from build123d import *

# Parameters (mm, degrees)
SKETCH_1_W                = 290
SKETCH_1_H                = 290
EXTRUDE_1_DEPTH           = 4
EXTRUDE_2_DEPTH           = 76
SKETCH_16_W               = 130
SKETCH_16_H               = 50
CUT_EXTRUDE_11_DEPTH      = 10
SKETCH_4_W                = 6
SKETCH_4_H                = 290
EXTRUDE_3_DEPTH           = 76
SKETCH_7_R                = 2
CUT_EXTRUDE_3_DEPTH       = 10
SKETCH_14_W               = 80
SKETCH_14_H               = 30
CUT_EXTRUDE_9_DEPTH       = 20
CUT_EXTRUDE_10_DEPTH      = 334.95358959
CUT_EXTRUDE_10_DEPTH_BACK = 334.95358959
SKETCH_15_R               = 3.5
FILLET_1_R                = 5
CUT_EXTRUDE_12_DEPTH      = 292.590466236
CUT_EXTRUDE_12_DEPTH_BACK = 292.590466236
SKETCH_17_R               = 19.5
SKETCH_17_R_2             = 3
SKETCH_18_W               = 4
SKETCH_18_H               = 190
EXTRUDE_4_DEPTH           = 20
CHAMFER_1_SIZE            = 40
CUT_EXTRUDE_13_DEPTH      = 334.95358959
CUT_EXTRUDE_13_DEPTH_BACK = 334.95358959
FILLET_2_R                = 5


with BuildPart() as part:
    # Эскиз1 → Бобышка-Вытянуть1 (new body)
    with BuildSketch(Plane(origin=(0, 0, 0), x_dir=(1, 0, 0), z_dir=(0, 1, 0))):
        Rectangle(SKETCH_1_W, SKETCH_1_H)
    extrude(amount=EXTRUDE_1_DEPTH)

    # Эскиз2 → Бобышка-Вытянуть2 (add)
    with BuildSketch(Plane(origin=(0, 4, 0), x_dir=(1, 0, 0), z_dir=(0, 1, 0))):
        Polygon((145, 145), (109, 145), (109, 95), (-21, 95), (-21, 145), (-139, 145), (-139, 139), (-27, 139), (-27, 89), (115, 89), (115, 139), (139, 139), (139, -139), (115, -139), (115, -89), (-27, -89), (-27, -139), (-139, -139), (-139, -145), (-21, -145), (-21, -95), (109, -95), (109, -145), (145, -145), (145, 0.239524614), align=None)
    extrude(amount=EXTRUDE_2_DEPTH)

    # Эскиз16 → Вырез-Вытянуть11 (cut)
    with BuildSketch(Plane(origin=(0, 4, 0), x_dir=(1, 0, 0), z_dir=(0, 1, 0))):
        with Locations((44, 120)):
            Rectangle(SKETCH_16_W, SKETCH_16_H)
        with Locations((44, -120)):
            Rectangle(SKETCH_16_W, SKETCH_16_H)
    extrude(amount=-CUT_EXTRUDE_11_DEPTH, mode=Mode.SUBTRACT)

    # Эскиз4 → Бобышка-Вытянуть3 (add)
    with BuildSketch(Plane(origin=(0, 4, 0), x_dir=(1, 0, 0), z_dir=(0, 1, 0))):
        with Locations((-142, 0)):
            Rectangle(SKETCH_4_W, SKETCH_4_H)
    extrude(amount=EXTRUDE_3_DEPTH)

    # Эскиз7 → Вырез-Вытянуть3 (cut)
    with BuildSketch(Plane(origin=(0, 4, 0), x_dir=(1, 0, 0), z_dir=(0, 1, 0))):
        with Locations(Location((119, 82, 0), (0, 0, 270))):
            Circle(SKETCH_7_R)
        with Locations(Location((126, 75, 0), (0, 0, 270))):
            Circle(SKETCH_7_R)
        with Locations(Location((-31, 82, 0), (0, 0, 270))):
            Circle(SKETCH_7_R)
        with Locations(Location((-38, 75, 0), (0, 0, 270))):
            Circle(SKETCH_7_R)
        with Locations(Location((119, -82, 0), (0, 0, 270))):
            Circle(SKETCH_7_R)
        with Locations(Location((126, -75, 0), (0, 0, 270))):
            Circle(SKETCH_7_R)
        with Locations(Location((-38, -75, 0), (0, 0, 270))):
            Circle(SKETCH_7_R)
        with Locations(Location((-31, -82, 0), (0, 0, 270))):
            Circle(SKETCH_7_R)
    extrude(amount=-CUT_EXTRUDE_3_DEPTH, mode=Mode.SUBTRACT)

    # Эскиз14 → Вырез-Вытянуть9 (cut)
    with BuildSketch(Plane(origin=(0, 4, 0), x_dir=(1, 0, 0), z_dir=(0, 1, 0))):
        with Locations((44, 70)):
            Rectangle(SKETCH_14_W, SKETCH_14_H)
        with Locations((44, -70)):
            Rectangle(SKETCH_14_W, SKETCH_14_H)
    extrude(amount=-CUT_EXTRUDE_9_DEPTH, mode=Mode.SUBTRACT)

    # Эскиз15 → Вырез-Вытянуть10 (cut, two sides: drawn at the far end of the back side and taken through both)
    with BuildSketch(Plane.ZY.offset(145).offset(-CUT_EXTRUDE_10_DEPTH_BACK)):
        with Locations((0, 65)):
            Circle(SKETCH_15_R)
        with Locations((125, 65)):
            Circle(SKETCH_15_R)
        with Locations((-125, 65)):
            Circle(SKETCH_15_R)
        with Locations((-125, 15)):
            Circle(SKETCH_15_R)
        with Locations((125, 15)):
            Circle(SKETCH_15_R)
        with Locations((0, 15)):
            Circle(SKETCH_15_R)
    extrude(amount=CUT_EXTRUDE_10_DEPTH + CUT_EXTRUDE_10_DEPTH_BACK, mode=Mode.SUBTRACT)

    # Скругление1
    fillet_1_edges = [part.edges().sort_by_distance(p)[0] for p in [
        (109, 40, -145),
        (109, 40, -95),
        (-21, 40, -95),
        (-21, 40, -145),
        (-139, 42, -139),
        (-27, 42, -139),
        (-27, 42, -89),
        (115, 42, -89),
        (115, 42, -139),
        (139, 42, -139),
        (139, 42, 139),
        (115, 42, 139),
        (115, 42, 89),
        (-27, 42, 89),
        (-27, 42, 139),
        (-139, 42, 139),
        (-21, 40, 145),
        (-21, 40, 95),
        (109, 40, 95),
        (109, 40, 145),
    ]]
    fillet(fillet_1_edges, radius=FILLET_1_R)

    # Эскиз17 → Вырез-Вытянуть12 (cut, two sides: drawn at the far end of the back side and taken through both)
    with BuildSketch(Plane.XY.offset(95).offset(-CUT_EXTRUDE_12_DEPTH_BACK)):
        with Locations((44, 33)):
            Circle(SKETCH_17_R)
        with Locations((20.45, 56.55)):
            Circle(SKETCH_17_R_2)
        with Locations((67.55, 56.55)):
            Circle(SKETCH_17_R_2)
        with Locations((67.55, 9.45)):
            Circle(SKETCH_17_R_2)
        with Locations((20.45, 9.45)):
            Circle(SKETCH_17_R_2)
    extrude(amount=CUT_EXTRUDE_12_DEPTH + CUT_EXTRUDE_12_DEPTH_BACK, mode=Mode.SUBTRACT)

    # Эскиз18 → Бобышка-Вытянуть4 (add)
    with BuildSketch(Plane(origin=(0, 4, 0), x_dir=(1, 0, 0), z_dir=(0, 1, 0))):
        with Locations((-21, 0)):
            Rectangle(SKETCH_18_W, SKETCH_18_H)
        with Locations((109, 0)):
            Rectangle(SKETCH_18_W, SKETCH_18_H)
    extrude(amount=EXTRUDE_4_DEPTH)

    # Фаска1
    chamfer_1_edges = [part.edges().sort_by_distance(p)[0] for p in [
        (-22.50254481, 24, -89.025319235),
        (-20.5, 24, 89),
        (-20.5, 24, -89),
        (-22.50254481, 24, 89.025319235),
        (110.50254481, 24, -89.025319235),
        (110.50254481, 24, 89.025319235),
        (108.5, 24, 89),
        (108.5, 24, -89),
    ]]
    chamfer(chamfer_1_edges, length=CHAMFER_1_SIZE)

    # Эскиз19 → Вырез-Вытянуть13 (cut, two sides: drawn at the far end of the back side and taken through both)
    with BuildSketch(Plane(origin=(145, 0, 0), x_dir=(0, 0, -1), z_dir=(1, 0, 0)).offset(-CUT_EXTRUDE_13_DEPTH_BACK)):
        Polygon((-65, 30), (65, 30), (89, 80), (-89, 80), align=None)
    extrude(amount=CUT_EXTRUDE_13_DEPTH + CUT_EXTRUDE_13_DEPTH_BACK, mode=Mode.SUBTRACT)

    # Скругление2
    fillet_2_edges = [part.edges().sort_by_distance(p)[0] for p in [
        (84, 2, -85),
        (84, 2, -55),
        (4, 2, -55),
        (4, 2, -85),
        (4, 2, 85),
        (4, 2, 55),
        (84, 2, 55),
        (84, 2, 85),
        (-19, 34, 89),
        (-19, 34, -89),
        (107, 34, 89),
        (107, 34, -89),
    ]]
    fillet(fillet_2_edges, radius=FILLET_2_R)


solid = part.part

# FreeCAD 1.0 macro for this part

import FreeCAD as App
import Part
import Sketcher

V = App.Vector
Q = App.Units.Quantity


def edges_at(feature, points):
    """Names of the edges that pass closest to the given points."""
    edges = feature.Shape.Edges
    near = lambda p: min(range(len(edges)), key=lambda i: edges[i].distToShape(Part.Vertex(*p))[0])
    return sorted({f"Edge{near(p) + 1}" for p in points})

doc = App.newDocument("Part")
body = doc.addObject("PartDesign::Body", "Body")

# Sketch on XZ plane
sketch1 = body.newObject("Sketcher::SketchObject", "Sketch")
sketch1.AttachmentSupport = (doc.getObject("XZ_Plane"), [""])
sketch1.MapMode = "FlatFace"
sketch1.addGeometry([
    Part.LineSegment(V(-145, -145, 0), V(-145, 145, 0)),
    Part.LineSegment(V(-145, 145, 0), V(145, 145, 0)),
    Part.LineSegment(V(145, 145, 0), V(145, -145, 0)),
    Part.LineSegment(V(145, -145, 0), V(-145, -145, 0)),
], False)
sketch1.addConstraint([
    Sketcher.Constraint("Coincident", 0, 2, 1, 1),
    Sketcher.Constraint("Coincident", 1, 2, 2, 1),
    Sketcher.Constraint("Coincident", 2, 2, 3, 1),
    Sketcher.Constraint("Coincident", 3, 2, 0, 1),
    Sketcher.Constraint("Vertical", 0),
    Sketcher.Constraint("Horizontal", 1),
    Sketcher.Constraint("Vertical", 2),
    Sketcher.Constraint("Horizontal", 3),
    Sketcher.Constraint("Symmetric", 0, 2, 2, 2, -1, 1),
    Sketcher.Constraint("Equal", 3, 0),
    Sketcher.Constraint("DistanceX", 1, 1, 1, 2, Q("290 mm")),
])
pad1 = body.newObject("PartDesign::Pad", "Pad")
pad1.Profile = sketch1
pad1.Length = 4
pad1.Reversed = True

# Sketch on XZ plane
sketch2 = body.newObject("Sketcher::SketchObject", "Sketch001")
sketch2.AttachmentSupport = (doc.getObject("XZ_Plane"), [""])
sketch2.MapMode = "FlatFace"
sketch2.AttachmentOffset = App.Placement(V(0, 0, -4), App.Rotation())
sketch2.addGeometry([
    Part.LineSegment(V(145, -145, 0), V(109, -145, 0)),  # 0
    Part.LineSegment(V(109, -145, 0), V(109, -95, 0)),  # 1
    Part.LineSegment(V(109, -95, 0), V(-21, -95, 0)),  # 2
    Part.LineSegment(V(-21, -95, 0), V(-21, -145, 0)),  # 3
    Part.LineSegment(V(-21, -145, 0), V(-139, -145, 0)),  # 4
    Part.LineSegment(V(-139, -145, 0), V(-139, -139, 0)),  # 5
    Part.LineSegment(V(-139, -139, 0), V(-27, -139, 0)),  # 6
    Part.LineSegment(V(-27, -139, 0), V(-27, -89, 0)),  # 7
    Part.LineSegment(V(-27, -89, 0), V(115, -89, 0)),  # 8
    Part.LineSegment(V(115, -89, 0), V(115, -139, 0)),  # 9
    Part.LineSegment(V(115, -139, 0), V(139, -139, 0)),  # 10
    Part.LineSegment(V(139, -139, 0), V(139, 139, 0)),  # 11
    Part.LineSegment(V(139, 139, 0), V(115, 139, 0)),  # 12
    Part.LineSegment(V(115, 139, 0), V(115, 89, 0)),  # 13
    Part.LineSegment(V(115, 89, 0), V(-27, 89, 0)),  # 14
    Part.LineSegment(V(-27, 89, 0), V(-27, 139, 0)),  # 15
    Part.LineSegment(V(-27, 139, 0), V(-139, 139, 0)),  # 16
    Part.LineSegment(V(-139, 139, 0), V(-139, 145, 0)),  # 17
    Part.LineSegment(V(-139, 145, 0), V(-21, 145, 0)),  # 18
    Part.LineSegment(V(-21, 145, 0), V(-21, 95, 0)),  # 19
    Part.LineSegment(V(-21, 95, 0), V(109, 95, 0)),  # 20
    Part.LineSegment(V(109, 95, 0), V(109, 145, 0)),  # 21
    Part.LineSegment(V(109, 145, 0), V(145, 145, 0)),  # 22
    Part.LineSegment(V(145, 145, 0), V(145, -145, 0)),  # 23
], False)
sketch2.addConstraint([
    Sketcher.Constraint("Coincident", 0, 2, 1, 1),
    Sketcher.Constraint("Coincident", 1, 2, 2, 1),
    Sketcher.Constraint("Coincident", 2, 2, 3, 1),
    Sketcher.Constraint("Coincident", 3, 2, 4, 1),
    Sketcher.Constraint("Coincident", 4, 2, 5, 1),
    Sketcher.Constraint("Coincident", 5, 2, 6, 1),
    Sketcher.Constraint("Coincident", 6, 2, 7, 1),
    Sketcher.Constraint("Coincident", 7, 2, 8, 1),
    Sketcher.Constraint("Coincident", 8, 2, 9, 1),
    Sketcher.Constraint("Coincident", 9, 2, 10, 1),
    Sketcher.Constraint("Coincident", 10, 2, 11, 1),
    Sketcher.Constraint("Coincident", 11, 2, 12, 1),
    Sketcher.Constraint("Coincident", 12, 2, 13, 1),
    Sketcher.Constraint("Coincident", 13, 2, 14, 1),
    Sketcher.Constraint("Coincident", 14, 2, 15, 1),
    Sketcher.Constraint("Coincident", 15, 2, 16, 1),
    Sketcher.Constraint("Coincident", 16, 2, 17, 1),
    Sketcher.Constraint("Coincident", 17, 2, 18, 1),
    Sketcher.Constraint("Coincident", 18, 2, 19, 1),
    Sketcher.Constraint("Coincident", 19, 2, 20, 1),
    Sketcher.Constraint("Coincident", 20, 2, 21, 1),
    Sketcher.Constraint("Coincident", 21, 2, 22, 1),
    Sketcher.Constraint("Coincident", 22, 2, 23, 1),
    Sketcher.Constraint("Coincident", 23, 2, 0, 1),
    Sketcher.Constraint("Horizontal", 0),
    Sketcher.Constraint("Vertical", 1),
    Sketcher.Constraint("Horizontal", 2),
    Sketcher.Constraint("Vertical", 3),
    Sketcher.Constraint("Horizontal", 4),
    Sketcher.Constraint("Vertical", 5),
    Sketcher.Constraint("Horizontal", 6),
    Sketcher.Constraint("Vertical", 7),
    Sketcher.Constraint("Horizontal", 8),
    Sketcher.Constraint("Vertical", 9),
    Sketcher.Constraint("Horizontal", 10),
    Sketcher.Constraint("Vertical", 11),
    Sketcher.Constraint("Horizontal", 12),
    Sketcher.Constraint("Vertical", 13),
    Sketcher.Constraint("Horizontal", 14),
    Sketcher.Constraint("Vertical", 15),
    Sketcher.Constraint("Horizontal", 16),
    Sketcher.Constraint("Vertical", 17),
    Sketcher.Constraint("Horizontal", 18),
    Sketcher.Constraint("Vertical", 19),
    Sketcher.Constraint("Horizontal", 20),
    Sketcher.Constraint("Vertical", 21),
    Sketcher.Constraint("Horizontal", 22),
    Sketcher.Constraint("Vertical", 23),
    Sketcher.Constraint("Symmetric", 5, 2, 11, 2, -1, 1),
    Sketcher.Constraint("Symmetric", 10, 2, 16, 2, -1, 1),
    Sketcher.Constraint("Symmetric", 9, 2, 12, 2, -1),
    Sketcher.Constraint("Symmetric", 7, 2, 14, 2, -1),
    Sketcher.Constraint("Symmetric", 3, 2, 18, 2, -1),
    Sketcher.Constraint("Symmetric", 1, 2, 20, 2, -1),
    Sketcher.Constraint("Horizontal", 0, 2, 3, 2),
    Sketcher.Constraint("Horizontal", 18, 2, 21, 2),
    Sketcher.Constraint("Equal", 3, 7),
    Sketcher.Constraint("DistanceX", 0, 2, 0, 1, Q("36 mm")),
    Sketcher.Constraint("DistanceX", 2, 2, 2, 1, Q("130 mm")),
    Sketcher.Constraint("DistanceX", 4, 2, 4, 1, Q("118 mm")),
    Sketcher.Constraint("DistanceX", 6, 1, 6, 2, Q("112 mm")),
    Sketcher.Constraint("DistanceX", 8, 1, 8, 2, Q("142 mm")),
    Sketcher.Constraint("DistanceX", 10, 1, 10, 2, Q("24 mm")),
    Sketcher.Constraint("DistanceY", 1, 1, 1, 2, Q("50 mm")),
    Sketcher.Constraint("DistanceY", 5, 1, 5, 2, Q("6 mm")),
    Sketcher.Constraint("DistanceY", 11, 1, 11, 2, Q("278 mm")),
])
pad2 = body.newObject("PartDesign::Pad", "Pad001")
pad2.Profile = sketch2
pad2.Length = 76
pad2.Reversed = True

# Sketch on XZ plane
sketch3 = body.newObject("Sketcher::SketchObject", "Sketch002")
sketch3.AttachmentSupport = (doc.getObject("XZ_Plane"), [""])
sketch3.MapMode = "FlatFace"
sketch3.AttachmentOffset = App.Placement(V(0, 0, -4), App.Rotation())
sketch3.addGeometry([
    Part.LineSegment(V(-21, -145, 0), V(-21, -95, 0)),  # 0
    Part.LineSegment(V(-21, -95, 0), V(109, -95, 0)),  # 1
    Part.LineSegment(V(109, -95, 0), V(109, -145, 0)),  # 2
    Part.LineSegment(V(109, -145, 0), V(-21, -145, 0)),  # 3
    Part.LineSegment(V(-21, 95, 0), V(-21, 145, 0)),  # 4
    Part.LineSegment(V(-21, 145, 0), V(109, 145, 0)),  # 5
    Part.LineSegment(V(109, 145, 0), V(109, 95, 0)),  # 6
    Part.LineSegment(V(109, 95, 0), V(-21, 95, 0)),  # 7
], False)
sketch3.addConstraint([
    Sketcher.Constraint("Coincident", 0, 2, 1, 1),
    Sketcher.Constraint("Coincident", 1, 2, 2, 1),
    Sketcher.Constraint("Coincident", 2, 2, 3, 1),
    Sketcher.Constraint("Coincident", 3, 2, 0, 1),
    Sketcher.Constraint("Coincident", 4, 2, 5, 1),
    Sketcher.Constraint("Coincident", 5, 2, 6, 1),
    Sketcher.Constraint("Coincident", 6, 2, 7, 1),
    Sketcher.Constraint("Coincident", 7, 2, 4, 1),
    Sketcher.Constraint("Vertical", 0),
    Sketcher.Constraint("Horizontal", 1),
    Sketcher.Constraint("Vertical", 2),
    Sketcher.Constraint("Horizontal", 3),
    Sketcher.Constraint("Vertical", 4),
    Sketcher.Constraint("Horizontal", 5),
    Sketcher.Constraint("Vertical", 6),
    Sketcher.Constraint("Horizontal", 7),
    Sketcher.Constraint("Symmetric", 3, 2, 4, 2, -1),
    Sketcher.Constraint("Symmetric", 1, 2, 6, 2, -1),
    Sketcher.Constraint("DistanceX", 1, 1, 1, 2, Q("130 mm")),
    Sketcher.Constraint("DistanceY", 0, 1, 0, 2, Q("50 mm")),
    Sketcher.Constraint("DistanceX", 0, 2, -1, 1, Q("21 mm")),
    Sketcher.Constraint("DistanceY", 0, 2, -1, 1, Q("95 mm")),
])
pocket1 = body.newObject("PartDesign::Pocket", "Pocket")
pocket1.Profile = sketch3
pocket1.Length = 10
pocket1.Reversed = True

# Sketch on XZ plane
sketch4 = body.newObject("Sketcher::SketchObject", "Sketch003")
sketch4.AttachmentSupport = (doc.getObject("XZ_Plane"), [""])
sketch4.MapMode = "FlatFace"
sketch4.AttachmentOffset = App.Placement(V(0, 0, -4), App.Rotation())
sketch4.addGeometry([
    Part.LineSegment(V(-145, -145, 0), V(-145, 145, 0)),
    Part.LineSegment(V(-145, 145, 0), V(-139, 145, 0)),
    Part.LineSegment(V(-139, 145, 0), V(-139, -145, 0)),
    Part.LineSegment(V(-139, -145, 0), V(-145, -145, 0)),
], False)
sketch4.addConstraint([
    Sketcher.Constraint("Coincident", 0, 2, 1, 1),
    Sketcher.Constraint("Coincident", 1, 2, 2, 1),
    Sketcher.Constraint("Coincident", 2, 2, 3, 1),
    Sketcher.Constraint("Coincident", 3, 2, 0, 1),
    Sketcher.Constraint("Vertical", 0),
    Sketcher.Constraint("Horizontal", 1),
    Sketcher.Constraint("Vertical", 2),
    Sketcher.Constraint("Horizontal", 3),
    Sketcher.Constraint("DistanceX", 1, 1, 1, 2, Q("6 mm")),
    Sketcher.Constraint("DistanceY", 0, 1, 0, 2, Q("290 mm")),
    Sketcher.Constraint("DistanceX", 0, 2, -1, 1, Q("145 mm")),
    Sketcher.Constraint("DistanceY", -1, 1, 0, 2, Q("145 mm")),
])
pad3 = body.newObject("PartDesign::Pad", "Pad002")
pad3.Profile = sketch4
pad3.Length = 76
pad3.Reversed = True

# Sketch on XZ plane
sketch5 = body.newObject("Sketcher::SketchObject", "Sketch004")
sketch5.AttachmentSupport = (doc.getObject("XZ_Plane"), [""])
sketch5.MapMode = "FlatFace"
sketch5.AttachmentOffset = App.Placement(V(0, 0, -4), App.Rotation())
sketch5.addGeometry([
    Part.Circle(V(119, -82, 0), V(0, 0, 1), 2),  # 0
    Part.Circle(V(126, -75, 0), V(0, 0, 1), 2),  # 1
    Part.Circle(V(-31, -82, 0), V(0, 0, 1), 2),  # 2
    Part.Circle(V(-38, -75, 0), V(0, 0, 1), 2),  # 3
    Part.Circle(V(119, 82, 0), V(0, 0, 1), 2),  # 4
    Part.Circle(V(126, 75, 0), V(0, 0, 1), 2),  # 5
    Part.Circle(V(-38, 75, 0), V(0, 0, 1), 2),  # 6
    Part.Circle(V(-31, 82, 0), V(0, 0, 1), 2),  # 7
], False)
sketch5.addConstraint([
    Sketcher.Constraint("Equal", 0, 1),
    Sketcher.Constraint("Equal", 1, 2),
    Sketcher.Constraint("Equal", 2, 3),
    Sketcher.Constraint("Equal", 3, 4),
    Sketcher.Constraint("Equal", 4, 5),
    Sketcher.Constraint("Equal", 5, 6),
    Sketcher.Constraint("Equal", 6, 7),
    Sketcher.Constraint("Symmetric", 0, 3, 4, 3, -1),
    Sketcher.Constraint("Symmetric", 1, 3, 5, 3, -1),
    Sketcher.Constraint("Symmetric", 3, 3, 6, 3, -1),
    Sketcher.Constraint("Symmetric", 2, 3, 7, 3, -1),
    Sketcher.Constraint("Horizontal", 0, 3, 2, 3),
    Sketcher.Constraint("Horizontal", 1, 3, 3, 3),
    Sketcher.Constraint("Diameter", 0, Q("4 mm")),
    Sketcher.Constraint("DistanceX", -1, 1, 0, 3, Q("119 mm")),
    Sketcher.Constraint("DistanceY", 0, 3, -1, 1, Q("82 mm")),
    Sketcher.Constraint("DistanceX", -1, 1, 1, 3, Q("126 mm")),
    Sketcher.Constraint("DistanceY", 1, 3, -1, 1, Q("75 mm")),
    Sketcher.Constraint("DistanceX", 2, 3, -1, 1, Q("31 mm")),
    Sketcher.Constraint("DistanceX", 3, 3, -1, 1, Q("38 mm")),
])
pocket2 = body.newObject("PartDesign::Pocket", "Pocket001")
pocket2.Profile = sketch5
pocket2.Length = 10
pocket2.Reversed = True

# Sketch on XZ plane
sketch6 = body.newObject("Sketcher::SketchObject", "Sketch005")
sketch6.AttachmentSupport = (doc.getObject("XZ_Plane"), [""])
sketch6.MapMode = "FlatFace"
sketch6.AttachmentOffset = App.Placement(V(0, 0, -4), App.Rotation())
sketch6.addGeometry([
    Part.LineSegment(V(4, -85, 0), V(4, -55, 0)),  # 0
    Part.LineSegment(V(4, -55, 0), V(84, -55, 0)),  # 1
    Part.LineSegment(V(84, -55, 0), V(84, -85, 0)),  # 2
    Part.LineSegment(V(84, -85, 0), V(4, -85, 0)),  # 3
    Part.LineSegment(V(4, 55, 0), V(4, 85, 0)),  # 4
    Part.LineSegment(V(4, 85, 0), V(84, 85, 0)),  # 5
    Part.LineSegment(V(84, 85, 0), V(84, 55, 0)),  # 6
    Part.LineSegment(V(84, 55, 0), V(4, 55, 0)),  # 7
], False)
sketch6.addConstraint([
    Sketcher.Constraint("Coincident", 0, 2, 1, 1),
    Sketcher.Constraint("Coincident", 1, 2, 2, 1),
    Sketcher.Constraint("Coincident", 2, 2, 3, 1),
    Sketcher.Constraint("Coincident", 3, 2, 0, 1),
    Sketcher.Constraint("Coincident", 4, 2, 5, 1),
    Sketcher.Constraint("Coincident", 5, 2, 6, 1),
    Sketcher.Constraint("Coincident", 6, 2, 7, 1),
    Sketcher.Constraint("Coincident", 7, 2, 4, 1),
    Sketcher.Constraint("Vertical", 0),
    Sketcher.Constraint("Horizontal", 1),
    Sketcher.Constraint("Vertical", 2),
    Sketcher.Constraint("Horizontal", 3),
    Sketcher.Constraint("Vertical", 4),
    Sketcher.Constraint("Horizontal", 5),
    Sketcher.Constraint("Vertical", 6),
    Sketcher.Constraint("Horizontal", 7),
    Sketcher.Constraint("Symmetric", 3, 2, 4, 2, -1),
    Sketcher.Constraint("Symmetric", 1, 2, 6, 2, -1),
    Sketcher.Constraint("DistanceX", 1, 1, 1, 2, Q("80 mm")),
    Sketcher.Constraint("DistanceY", 0, 1, 0, 2, Q("30 mm")),
    Sketcher.Constraint("DistanceX", -1, 1, 0, 2, Q("4 mm")),
    Sketcher.Constraint("DistanceY", 0, 2, -1, 1, Q("55 mm")),
])
pocket3 = body.newObject("PartDesign::Pocket", "Pocket002")
pocket3.Profile = sketch6
pocket3.Length = 20
pocket3.Reversed = True

# Sketch on YZ plane
sketch7 = body.newObject("Sketcher::SketchObject", "Sketch006")
sketch7.AttachmentSupport = (doc.getObject("YZ_Plane"), [""])
sketch7.MapMode = "FlatFace"
sketch7.AttachmentOffset = App.Placement(V(0, 0, -145), App.Rotation())
sketch7.addGeometry([
    Part.Circle(V(65, 0, 0), V(0, 0, 1), 3.5),  # 0
    Part.Circle(V(65, 125, 0), V(0, 0, 1), 3.5),  # 1
    Part.Circle(V(65, -125, 0), V(0, 0, 1), 3.5),  # 2
    Part.Circle(V(15, -125, 0), V(0, 0, 1), 3.5),  # 3
    Part.Circle(V(15, 125, 0), V(0, 0, 1), 3.5),  # 4
    Part.Circle(V(15, 0, 0), V(0, 0, 1), 3.5),  # 5
], False)
sketch7.addConstraint([
    Sketcher.Constraint("Equal", 0, 1),
    Sketcher.Constraint("Equal", 1, 2),
    Sketcher.Constraint("Equal", 2, 3),
    Sketcher.Constraint("Equal", 3, 4),
    Sketcher.Constraint("Equal", 4, 5),
    Sketcher.Constraint("Symmetric", 1, 3, 2, 3, -1),
    Sketcher.Constraint("Symmetric", 3, 3, 4, 3, -1),
    Sketcher.Constraint("PointOnObject", 0, 3, -1),
    Sketcher.Constraint("PointOnObject", 5, 3, -1),
    Sketcher.Constraint("Horizontal", 2, 3, 3, 3),
    Sketcher.Constraint("Vertical", 0, 3, 1, 3),
    Sketcher.Constraint("Vertical", 4, 3, 5, 3),
    Sketcher.Constraint("Diameter", 0, Q("7 mm")),
    Sketcher.Constraint("DistanceX", -1, 1, 0, 3, Q("65 mm")),
    Sketcher.Constraint("DistanceY", -1, 1, 1, 3, Q("125 mm")),
    Sketcher.Constraint("DistanceX", -1, 1, 3, 3, Q("15 mm")),
])
pocket4 = body.newObject("PartDesign::Pocket", "Pocket003")
pocket4.Profile = sketch7
pocket4.Type = "ThroughAll"
pocket4.Midplane = True
doc.recompute()

fillet = body.newObject("PartDesign::Fillet", "Fillet")
fillet.Base = (pocket4, edges_at(pocket4, [
    (109, 40, -145),
    (109, 40, -95),
    (-21, 40, -95),
    (-21, 40, -145),
    (-139, 42, -139),
    (-27, 42, -139),
    (-27, 42, -89),
    (115, 42, -89),
    (115, 42, -139),
    (139, 42, -139),
    (139, 42, 139),
    (115, 42, 139),
    (115, 42, 89),
    (-27, 42, 89),
    (-27, 42, 139),
    (-139, 42, 139),
    (-21, 40, 145),
    (-21, 40, 95),
    (109, 40, 95),
    (109, 40, 145),
]))
fillet.Radius = 5

# Sketch on XY plane
sketch8 = body.newObject("Sketcher::SketchObject", "Sketch007")
sketch8.AttachmentSupport = (doc.getObject("XY_Plane"), [""])
sketch8.MapMode = "FlatFace"
sketch8.AttachmentOffset = App.Placement(V(0, 0, 95), App.Rotation())
sketch8.addGeometry([
    Part.Circle(V(44, 33, 0), V(0, 0, 1), 19.5),  # 0
    Part.Circle(V(20.4, 56.5, 0), V(0, 0, 1), 3),  # 1
    Part.Circle(V(67.5, 56.5, 0), V(0, 0, 1), 3),  # 2
    Part.Circle(V(67.5, 9.4, 0), V(0, 0, 1), 3),  # 3
    Part.Circle(V(20.4, 9.4, 0), V(0, 0, 1), 3),  # 4
], False)
sketch8.addConstraint([
    Sketcher.Constraint("Equal", 1, 2),
    Sketcher.Constraint("Equal", 2, 3),
    Sketcher.Constraint("Equal", 3, 4),
    Sketcher.Constraint("Horizontal", 1, 3, 2, 3),
    Sketcher.Constraint("Horizontal", 3, 3, 4, 3),
    Sketcher.Constraint("Vertical", 2, 3, 3, 3),
    Sketcher.Constraint("Vertical", 1, 3, 4, 3),
    Sketcher.Constraint("Diameter", 0, Q("39 mm")),
    Sketcher.Constraint("Diameter", 1, Q("6 mm")),
    Sketcher.Constraint("DistanceX", -1, 1, 0, 3, Q("44 mm")),
    Sketcher.Constraint("DistanceY", -1, 1, 0, 3, Q("33 mm")),
    Sketcher.Constraint("DistanceX", 1, 3, 2, 3, Q("47.1 mm")),
    Sketcher.Constraint("DistanceY", 3, 3, 2, 3, Q("47.1 mm")),
    Sketcher.Constraint("DistanceX", -1, 1, 1, 3, Q("20.45 mm")),
    Sketcher.Constraint("DistanceY", -1, 1, 1, 3, Q("56.55 mm")),
])
pocket5 = body.newObject("PartDesign::Pocket", "Pocket004")
pocket5.Profile = sketch8
pocket5.Type = "ThroughAll"
pocket5.Midplane = True

# Sketch on XZ plane
sketch9 = body.newObject("Sketcher::SketchObject", "Sketch008")
sketch9.AttachmentSupport = (doc.getObject("XZ_Plane"), [""])
sketch9.MapMode = "FlatFace"
sketch9.AttachmentOffset = App.Placement(V(0, 0, -4), App.Rotation())
sketch9.addGeometry([
    Part.LineSegment(V(-23, -95, 0), V(-23, 95, 0)),  # 0
    Part.LineSegment(V(-23, 95, 0), V(-19, 95, 0)),  # 1
    Part.LineSegment(V(-19, 95, 0), V(-19, -95, 0)),  # 2
    Part.LineSegment(V(-19, -95, 0), V(-23, -95, 0)),  # 3
    Part.LineSegment(V(107, -95, 0), V(107, 95, 0)),  # 4
    Part.LineSegment(V(107, 95, 0), V(111, 95, 0)),  # 5
    Part.LineSegment(V(111, 95, 0), V(111, -95, 0)),  # 6
    Part.LineSegment(V(111, -95, 0), V(107, -95, 0)),  # 7
], False)
sketch9.addConstraint([
    Sketcher.Constraint("Coincident", 0, 2, 1, 1),
    Sketcher.Constraint("Coincident", 1, 2, 2, 1),
    Sketcher.Constraint("Coincident", 2, 2, 3, 1),
    Sketcher.Constraint("Coincident", 3, 2, 0, 1),
    Sketcher.Constraint("Coincident", 4, 2, 5, 1),
    Sketcher.Constraint("Coincident", 5, 2, 6, 1),
    Sketcher.Constraint("Coincident", 6, 2, 7, 1),
    Sketcher.Constraint("Coincident", 7, 2, 4, 1),
    Sketcher.Constraint("Vertical", 0),
    Sketcher.Constraint("Horizontal", 1),
    Sketcher.Constraint("Vertical", 2),
    Sketcher.Constraint("Horizontal", 3),
    Sketcher.Constraint("Vertical", 4),
    Sketcher.Constraint("Horizontal", 5),
    Sketcher.Constraint("Vertical", 6),
    Sketcher.Constraint("Horizontal", 7),
    Sketcher.Constraint("Horizontal", 1, 2, 4, 2),
    Sketcher.Constraint("Horizontal", 3, 2, 6, 2),
    Sketcher.Constraint("Equal", 3, 5),
    Sketcher.Constraint("DistanceX", 1, 1, 1, 2, Q("4 mm")),
    Sketcher.Constraint("DistanceY", 0, 1, 0, 2, Q("190 mm")),
    Sketcher.Constraint("DistanceX", 0, 2, -1, 1, Q("23 mm")),
    Sketcher.Constraint("DistanceY", -1, 1, 0, 2, Q("95 mm")),
    Sketcher.Constraint("DistanceX", -1, 1, 4, 2, Q("107 mm")),
])
pad4 = body.newObject("PartDesign::Pad", "Pad003")
pad4.Profile = sketch9
pad4.Length = 20
pad4.Reversed = True
doc.recompute()

chamfer = body.newObject("PartDesign::Chamfer", "Chamfer")
chamfer.Base = (pad4, edges_at(pad4, [
    (-22.503, 24, -89.025),
    (-20.5, 24, 89),
    (-20.5, 24, -89),
    (-22.503, 24, 89.025),
    (110.503, 24, -89.025),
    (110.503, 24, 89.025),
    (108.5, 24, 89),
    (108.5, 24, -89),
]))
chamfer.Size = 40

# Sketch on YZ plane
sketch10 = body.newObject("Sketcher::SketchObject", "Sketch009")
sketch10.AttachmentSupport = (doc.getObject("YZ_Plane"), [""])
sketch10.MapMode = "FlatFace"
sketch10.AttachmentOffset = App.Placement(V(0, 0, 145), App.Rotation())
sketch10.addGeometry([
    Part.LineSegment(V(30, 65, 0), V(30, -65, 0)),
    Part.LineSegment(V(30, -65, 0), V(80, -89, 0)),
    Part.LineSegment(V(80, -89, 0), V(80, 89, 0)),
    Part.LineSegment(V(80, 89, 0), V(30, 65, 0)),
], False)
sketch10.addConstraint([
    Sketcher.Constraint("Coincident", 0, 2, 1, 1),
    Sketcher.Constraint("Coincident", 1, 2, 2, 1),
    Sketcher.Constraint("Coincident", 2, 2, 3, 1),
    Sketcher.Constraint("Coincident", 3, 2, 0, 1),
    Sketcher.Constraint("Vertical", 0),
    Sketcher.Constraint("Vertical", 2),
    Sketcher.Constraint("Equal", 1, 3),
    Sketcher.Constraint("DistanceY", 0, 2, 0, 1, Q("130 mm")),
    Sketcher.Constraint("DistanceY", 2, 1, 2, 2, Q("178 mm")),
    Sketcher.Constraint("DistanceX", -1, 1, 0, 2, Q("30 mm")),
    Sketcher.Constraint("DistanceY", 0, 2, -1, 1, Q("65 mm")),
    Sketcher.Constraint("DistanceX", -1, 1, 1, 2, Q("80 mm")),
])
pocket6 = body.newObject("PartDesign::Pocket", "Pocket005")
pocket6.Profile = sketch10
pocket6.Type = "ThroughAll"
pocket6.Midplane = True
doc.recompute()

fillet2 = body.newObject("PartDesign::Fillet", "Fillet001")
fillet2.Base = (pocket6, edges_at(pocket6, [
    (84, 2, -85),
    (84, 2, -55),
    (4, 2, -55),
    (4, 2, -85),
    (4, 2, 85),
    (4, 2, 55),
    (84, 2, 55),
    (84, 2, 85),
    (-19, 34, 89),
    (-19, 34, -89),
    (107, 34, 89),
    (107, 34, -89),
]))
fillet2.Radius = 5

doc.recompute()
